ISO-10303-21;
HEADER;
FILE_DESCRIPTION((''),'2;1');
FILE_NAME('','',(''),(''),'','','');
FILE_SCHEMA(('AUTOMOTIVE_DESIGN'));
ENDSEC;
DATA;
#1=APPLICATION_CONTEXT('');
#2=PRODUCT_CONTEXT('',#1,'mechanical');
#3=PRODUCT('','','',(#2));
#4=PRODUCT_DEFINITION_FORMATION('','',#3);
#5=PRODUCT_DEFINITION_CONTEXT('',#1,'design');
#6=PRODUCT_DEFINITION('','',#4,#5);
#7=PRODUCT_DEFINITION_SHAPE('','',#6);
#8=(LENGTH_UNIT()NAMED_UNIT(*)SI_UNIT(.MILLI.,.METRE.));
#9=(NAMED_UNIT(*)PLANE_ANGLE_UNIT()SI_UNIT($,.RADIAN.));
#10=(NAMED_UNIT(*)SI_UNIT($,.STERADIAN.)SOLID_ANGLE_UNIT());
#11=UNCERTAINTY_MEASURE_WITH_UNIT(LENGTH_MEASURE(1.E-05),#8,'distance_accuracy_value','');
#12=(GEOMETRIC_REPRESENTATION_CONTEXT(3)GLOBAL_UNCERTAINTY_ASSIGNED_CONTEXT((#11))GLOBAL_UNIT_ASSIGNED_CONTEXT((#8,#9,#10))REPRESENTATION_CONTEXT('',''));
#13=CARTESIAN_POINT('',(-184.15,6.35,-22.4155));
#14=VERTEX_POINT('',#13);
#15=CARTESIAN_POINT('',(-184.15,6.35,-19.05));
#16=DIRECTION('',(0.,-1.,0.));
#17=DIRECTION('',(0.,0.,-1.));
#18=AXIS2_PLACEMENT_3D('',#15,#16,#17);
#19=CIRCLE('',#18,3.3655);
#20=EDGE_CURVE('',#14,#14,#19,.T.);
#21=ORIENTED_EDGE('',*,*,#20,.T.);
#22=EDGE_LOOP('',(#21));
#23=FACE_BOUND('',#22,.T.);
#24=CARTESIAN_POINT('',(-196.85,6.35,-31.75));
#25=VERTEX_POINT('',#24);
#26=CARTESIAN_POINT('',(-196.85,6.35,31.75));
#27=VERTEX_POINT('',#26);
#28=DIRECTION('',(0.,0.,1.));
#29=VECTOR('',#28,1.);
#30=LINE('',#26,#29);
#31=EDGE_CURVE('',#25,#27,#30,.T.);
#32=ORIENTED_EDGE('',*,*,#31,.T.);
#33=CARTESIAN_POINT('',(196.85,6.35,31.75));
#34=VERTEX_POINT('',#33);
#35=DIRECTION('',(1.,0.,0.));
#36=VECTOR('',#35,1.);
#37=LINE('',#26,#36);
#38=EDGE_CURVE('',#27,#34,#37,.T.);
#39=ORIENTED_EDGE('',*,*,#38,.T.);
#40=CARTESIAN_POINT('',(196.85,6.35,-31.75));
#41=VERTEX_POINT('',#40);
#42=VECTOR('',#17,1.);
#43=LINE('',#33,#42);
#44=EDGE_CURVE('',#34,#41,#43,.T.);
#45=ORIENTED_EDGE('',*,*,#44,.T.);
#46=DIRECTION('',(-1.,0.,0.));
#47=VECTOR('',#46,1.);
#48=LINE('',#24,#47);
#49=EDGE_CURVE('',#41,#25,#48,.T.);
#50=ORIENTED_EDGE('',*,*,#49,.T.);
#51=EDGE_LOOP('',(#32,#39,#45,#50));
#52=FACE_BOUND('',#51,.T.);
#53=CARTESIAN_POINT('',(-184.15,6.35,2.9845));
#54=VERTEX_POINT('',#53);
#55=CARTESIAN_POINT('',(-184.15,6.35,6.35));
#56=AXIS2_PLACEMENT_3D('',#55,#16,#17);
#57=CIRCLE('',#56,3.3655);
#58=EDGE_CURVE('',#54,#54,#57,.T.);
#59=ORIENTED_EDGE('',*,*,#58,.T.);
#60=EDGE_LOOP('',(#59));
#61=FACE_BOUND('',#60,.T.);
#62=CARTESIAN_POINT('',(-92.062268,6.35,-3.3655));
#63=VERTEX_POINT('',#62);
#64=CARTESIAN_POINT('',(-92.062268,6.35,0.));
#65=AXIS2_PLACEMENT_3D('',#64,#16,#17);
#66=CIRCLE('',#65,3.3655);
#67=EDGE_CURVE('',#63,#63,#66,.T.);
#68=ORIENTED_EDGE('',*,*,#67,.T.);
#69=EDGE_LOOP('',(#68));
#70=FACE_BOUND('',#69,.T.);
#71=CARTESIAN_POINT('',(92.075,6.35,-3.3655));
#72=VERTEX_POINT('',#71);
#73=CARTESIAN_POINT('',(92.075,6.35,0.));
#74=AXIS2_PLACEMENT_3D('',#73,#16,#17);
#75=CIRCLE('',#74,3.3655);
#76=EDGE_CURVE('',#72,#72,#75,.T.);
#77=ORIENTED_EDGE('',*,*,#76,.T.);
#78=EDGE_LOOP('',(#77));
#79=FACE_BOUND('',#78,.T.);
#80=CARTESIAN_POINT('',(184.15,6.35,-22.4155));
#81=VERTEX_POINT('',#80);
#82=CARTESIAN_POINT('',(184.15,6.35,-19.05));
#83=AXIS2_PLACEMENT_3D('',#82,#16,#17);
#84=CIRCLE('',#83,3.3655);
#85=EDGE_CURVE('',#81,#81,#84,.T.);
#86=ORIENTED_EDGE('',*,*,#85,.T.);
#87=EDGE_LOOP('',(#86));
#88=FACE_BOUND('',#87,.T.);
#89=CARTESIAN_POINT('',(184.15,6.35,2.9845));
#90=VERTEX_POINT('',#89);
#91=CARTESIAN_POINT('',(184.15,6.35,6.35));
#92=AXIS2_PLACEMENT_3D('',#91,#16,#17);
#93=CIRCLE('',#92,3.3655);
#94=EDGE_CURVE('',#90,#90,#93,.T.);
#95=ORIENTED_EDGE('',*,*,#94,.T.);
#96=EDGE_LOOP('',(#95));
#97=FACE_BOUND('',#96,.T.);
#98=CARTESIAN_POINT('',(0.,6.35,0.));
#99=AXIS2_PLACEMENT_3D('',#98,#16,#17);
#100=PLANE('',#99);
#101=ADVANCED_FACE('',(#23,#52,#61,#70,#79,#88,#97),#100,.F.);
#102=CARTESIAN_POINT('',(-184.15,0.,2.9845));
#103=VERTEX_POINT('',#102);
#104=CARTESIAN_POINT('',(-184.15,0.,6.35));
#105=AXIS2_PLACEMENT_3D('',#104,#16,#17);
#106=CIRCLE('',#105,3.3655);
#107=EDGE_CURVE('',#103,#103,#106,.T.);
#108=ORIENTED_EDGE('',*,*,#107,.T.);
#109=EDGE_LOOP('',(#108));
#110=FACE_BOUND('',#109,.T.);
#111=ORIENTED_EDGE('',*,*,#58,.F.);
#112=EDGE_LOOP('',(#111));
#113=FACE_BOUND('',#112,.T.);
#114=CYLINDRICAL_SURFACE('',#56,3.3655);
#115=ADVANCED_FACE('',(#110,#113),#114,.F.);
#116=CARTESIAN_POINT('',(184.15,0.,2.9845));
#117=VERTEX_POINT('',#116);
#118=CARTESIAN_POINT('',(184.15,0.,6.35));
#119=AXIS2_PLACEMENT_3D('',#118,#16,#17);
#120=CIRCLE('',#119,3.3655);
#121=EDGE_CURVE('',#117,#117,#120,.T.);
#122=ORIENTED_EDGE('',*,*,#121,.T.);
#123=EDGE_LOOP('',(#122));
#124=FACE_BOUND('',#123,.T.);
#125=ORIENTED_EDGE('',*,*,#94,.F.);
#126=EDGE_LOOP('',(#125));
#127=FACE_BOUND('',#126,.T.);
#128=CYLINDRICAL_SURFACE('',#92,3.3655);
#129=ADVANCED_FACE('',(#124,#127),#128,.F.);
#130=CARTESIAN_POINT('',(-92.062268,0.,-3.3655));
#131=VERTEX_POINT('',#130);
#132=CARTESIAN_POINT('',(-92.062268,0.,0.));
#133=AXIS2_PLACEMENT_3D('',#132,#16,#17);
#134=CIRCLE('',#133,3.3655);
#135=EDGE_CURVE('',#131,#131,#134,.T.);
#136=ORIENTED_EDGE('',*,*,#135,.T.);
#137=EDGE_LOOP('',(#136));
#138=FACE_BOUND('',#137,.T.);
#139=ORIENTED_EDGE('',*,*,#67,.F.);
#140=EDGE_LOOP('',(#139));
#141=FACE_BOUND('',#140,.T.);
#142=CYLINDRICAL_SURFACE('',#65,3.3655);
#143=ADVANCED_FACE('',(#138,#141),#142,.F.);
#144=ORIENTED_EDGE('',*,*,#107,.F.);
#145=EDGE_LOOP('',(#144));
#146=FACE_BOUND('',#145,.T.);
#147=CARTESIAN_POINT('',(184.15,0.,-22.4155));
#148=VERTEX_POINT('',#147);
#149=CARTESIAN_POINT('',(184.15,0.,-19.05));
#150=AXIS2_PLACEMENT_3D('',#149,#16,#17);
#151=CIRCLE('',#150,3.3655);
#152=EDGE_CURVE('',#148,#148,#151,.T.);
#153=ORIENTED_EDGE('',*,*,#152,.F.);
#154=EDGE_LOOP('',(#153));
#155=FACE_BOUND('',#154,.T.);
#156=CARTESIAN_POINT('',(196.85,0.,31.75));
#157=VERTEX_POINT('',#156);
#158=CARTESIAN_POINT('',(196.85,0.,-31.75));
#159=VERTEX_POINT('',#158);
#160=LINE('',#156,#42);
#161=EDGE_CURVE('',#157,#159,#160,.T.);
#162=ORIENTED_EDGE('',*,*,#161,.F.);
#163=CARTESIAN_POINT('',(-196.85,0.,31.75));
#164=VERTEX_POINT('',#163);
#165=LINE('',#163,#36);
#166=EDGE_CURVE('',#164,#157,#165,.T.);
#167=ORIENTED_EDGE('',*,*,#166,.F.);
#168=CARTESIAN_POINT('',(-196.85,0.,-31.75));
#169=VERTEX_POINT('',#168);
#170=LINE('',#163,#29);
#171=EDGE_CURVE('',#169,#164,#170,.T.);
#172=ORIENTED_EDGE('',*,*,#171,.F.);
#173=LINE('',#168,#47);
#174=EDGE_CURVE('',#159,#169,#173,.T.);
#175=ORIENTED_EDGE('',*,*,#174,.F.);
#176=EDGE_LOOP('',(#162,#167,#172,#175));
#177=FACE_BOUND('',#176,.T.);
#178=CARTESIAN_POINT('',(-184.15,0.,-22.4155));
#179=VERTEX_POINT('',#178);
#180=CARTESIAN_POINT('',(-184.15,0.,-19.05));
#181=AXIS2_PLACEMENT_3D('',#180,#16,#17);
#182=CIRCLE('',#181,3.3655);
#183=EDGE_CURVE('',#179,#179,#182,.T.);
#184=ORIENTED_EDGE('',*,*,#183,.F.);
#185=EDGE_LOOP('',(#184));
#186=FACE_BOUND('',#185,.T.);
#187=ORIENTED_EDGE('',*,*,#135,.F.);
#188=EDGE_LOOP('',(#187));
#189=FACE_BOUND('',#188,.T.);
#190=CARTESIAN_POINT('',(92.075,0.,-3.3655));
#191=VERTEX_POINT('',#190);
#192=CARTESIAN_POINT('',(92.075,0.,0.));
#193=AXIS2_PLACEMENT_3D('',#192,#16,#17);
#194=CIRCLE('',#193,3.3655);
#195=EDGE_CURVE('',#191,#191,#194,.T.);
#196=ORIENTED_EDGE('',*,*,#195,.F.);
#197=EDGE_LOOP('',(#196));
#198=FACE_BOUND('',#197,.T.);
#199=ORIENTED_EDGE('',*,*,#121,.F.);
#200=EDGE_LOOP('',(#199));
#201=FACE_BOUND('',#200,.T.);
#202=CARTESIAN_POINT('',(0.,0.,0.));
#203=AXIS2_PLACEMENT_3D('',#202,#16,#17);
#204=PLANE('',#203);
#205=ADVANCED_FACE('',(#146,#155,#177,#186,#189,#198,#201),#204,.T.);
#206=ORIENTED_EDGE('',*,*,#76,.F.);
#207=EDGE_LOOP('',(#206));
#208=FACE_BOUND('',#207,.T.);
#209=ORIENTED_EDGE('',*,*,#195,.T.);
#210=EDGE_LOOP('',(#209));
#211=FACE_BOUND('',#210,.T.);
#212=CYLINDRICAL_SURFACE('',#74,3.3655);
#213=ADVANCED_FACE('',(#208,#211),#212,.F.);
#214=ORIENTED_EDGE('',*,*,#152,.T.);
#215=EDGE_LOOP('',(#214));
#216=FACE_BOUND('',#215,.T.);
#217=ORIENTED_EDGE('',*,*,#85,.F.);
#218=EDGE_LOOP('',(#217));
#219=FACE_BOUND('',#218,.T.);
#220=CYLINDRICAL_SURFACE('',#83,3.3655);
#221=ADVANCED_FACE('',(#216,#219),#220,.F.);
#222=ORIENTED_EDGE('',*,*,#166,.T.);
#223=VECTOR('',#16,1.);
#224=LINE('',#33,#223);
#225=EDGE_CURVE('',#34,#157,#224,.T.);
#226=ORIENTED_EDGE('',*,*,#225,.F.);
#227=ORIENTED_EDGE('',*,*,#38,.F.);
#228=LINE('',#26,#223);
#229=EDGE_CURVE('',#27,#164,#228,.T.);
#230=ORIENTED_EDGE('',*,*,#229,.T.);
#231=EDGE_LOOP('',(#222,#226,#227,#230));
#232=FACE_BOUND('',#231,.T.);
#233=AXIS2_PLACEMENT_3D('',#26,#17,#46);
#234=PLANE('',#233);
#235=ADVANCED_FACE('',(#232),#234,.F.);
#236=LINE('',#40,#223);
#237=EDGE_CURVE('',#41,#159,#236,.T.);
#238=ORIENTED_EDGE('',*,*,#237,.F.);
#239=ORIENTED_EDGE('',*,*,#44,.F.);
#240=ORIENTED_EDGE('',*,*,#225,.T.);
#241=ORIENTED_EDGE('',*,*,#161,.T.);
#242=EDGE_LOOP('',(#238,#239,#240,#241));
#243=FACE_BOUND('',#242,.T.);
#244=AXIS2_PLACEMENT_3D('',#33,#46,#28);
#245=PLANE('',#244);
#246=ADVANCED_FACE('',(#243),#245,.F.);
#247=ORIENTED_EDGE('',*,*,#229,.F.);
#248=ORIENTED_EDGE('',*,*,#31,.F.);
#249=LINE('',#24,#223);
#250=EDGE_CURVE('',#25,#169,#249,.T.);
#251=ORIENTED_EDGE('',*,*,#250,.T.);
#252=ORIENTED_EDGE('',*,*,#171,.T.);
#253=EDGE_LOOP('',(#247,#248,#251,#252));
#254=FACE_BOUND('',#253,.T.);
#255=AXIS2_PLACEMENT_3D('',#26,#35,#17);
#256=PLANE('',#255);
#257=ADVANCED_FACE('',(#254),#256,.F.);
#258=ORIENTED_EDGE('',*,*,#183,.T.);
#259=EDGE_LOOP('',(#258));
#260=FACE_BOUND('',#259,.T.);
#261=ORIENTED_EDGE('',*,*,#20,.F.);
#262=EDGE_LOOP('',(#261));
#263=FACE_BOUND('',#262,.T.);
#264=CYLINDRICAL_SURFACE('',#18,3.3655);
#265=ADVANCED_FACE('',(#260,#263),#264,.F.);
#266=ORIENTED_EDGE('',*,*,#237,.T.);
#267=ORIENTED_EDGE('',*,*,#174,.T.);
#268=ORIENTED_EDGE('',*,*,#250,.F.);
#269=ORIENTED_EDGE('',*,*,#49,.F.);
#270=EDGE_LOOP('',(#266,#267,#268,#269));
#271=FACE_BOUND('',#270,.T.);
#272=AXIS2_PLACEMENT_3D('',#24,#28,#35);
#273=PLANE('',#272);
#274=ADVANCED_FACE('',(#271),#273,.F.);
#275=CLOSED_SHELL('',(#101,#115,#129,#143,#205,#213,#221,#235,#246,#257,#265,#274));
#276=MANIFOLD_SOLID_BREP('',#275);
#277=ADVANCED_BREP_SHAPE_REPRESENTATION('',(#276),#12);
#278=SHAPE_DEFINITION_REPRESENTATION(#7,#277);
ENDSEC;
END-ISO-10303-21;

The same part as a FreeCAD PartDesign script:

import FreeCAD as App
import Part
import Sketcher
from FreeCAD import Vector
Q = App.Units.Quantity


def add_polygon(sketch, points):
    """Adds a closed chain of lines whose ends are joined by coincident constraints."""
    first, n = sketch.GeometryCount, len(points)
    for a, b in zip(points, points[1:] + points[:1]):
        sketch.addGeometry(Part.LineSegment(App.Vector(*a, 0), App.Vector(*b, 0)), False)
    for i in range(n):
        sketch.addConstraint(Sketcher.Constraint("Coincident", first + i, 2, first + (i + 1) % n, 1))

doc = App.newDocument("Part")
body = doc.addObject("PartDesign::Body", "Body")

sketch1 = doc.addObject("Sketcher::SketchObject", "Sketch")
body.addObject(sketch1)
sketch1.AttachmentSupport = (doc.XZ_Plane, [""])
sketch1.MapMode = "FlatFace"
add_polygon(sketch1, [(-197, -32), (-197, 32), (197, 32), (197, -32)])
sketch1.addConstraint([
    Sketcher.Constraint("Vertical", 0),
    Sketcher.Constraint("Horizontal", 1),
    Sketcher.Constraint("Vertical", 2),
    Sketcher.Constraint("Horizontal", 3),
    Sketcher.Constraint("Symmetric", 0, 2, 2, 2, -1, 1),
    Sketcher.Constraint("DistanceX", 1, 1, 1, 2, Q("15.5 in")),
    Sketcher.Constraint("DistanceY", 0, 1, 0, 2, Q("2.5 in")),
])
pad1 = doc.addObject("PartDesign::Pad", "Pad")
body.addObject(pad1)
pad1.Profile = sketch1
pad1.Length = Q("0.25 in")
pad1.Reversed = True

sketch2 = doc.addObject("Sketcher::SketchObject", "Sketch001")
body.addObject(sketch2)
sketch2.AttachmentSupport = (doc.XZ_Plane, [""])
sketch2.MapMode = "FlatFace"
sketch2.addGeometry([
    Part.Circle(Vector(-92.1, 0, 0), Vector(0, 0, 1), 3.4),
    Part.Circle(Vector(-184.2, 6.3, 0), Vector(0, 0, 1), 3.4),
    Part.Circle(Vector(-184.2, -19.1, 0), Vector(0, 0, 1), 3.4),
    Part.Circle(Vector(92.1, 0, 0), Vector(0, 0, 1), 3.4),
    Part.Circle(Vector(184.2, 6.3, 0), Vector(0, 0, 1), 3.4),
    Part.Circle(Vector(184.2, -19.1, 0), Vector(0, 0, 1), 3.4),
], False)
sketch2.addConstraint([
    Sketcher.Constraint("Equal", 0, 1),
    Sketcher.Constraint("Equal", 1, 2),
    Sketcher.Constraint("Equal", 2, 3),
    Sketcher.Constraint("Equal", 3, 4),
    Sketcher.Constraint("Equal", 4, 5),
    Sketcher.Constraint("Symmetric", 1, 3, 4, 3, -2),
    Sketcher.Constraint("Symmetric", 2, 3, 5, 3, -2),
    Sketcher.Constraint("PointOnObject", 0, 3, -1),
    Sketcher.Constraint("PointOnObject", 3, 3, -1),
    Sketcher.Constraint("Vertical", 1, 3, 2, 3),
    Sketcher.Constraint("Diameter", 0, Q("0.265 in")),
    Sketcher.Constraint("DistanceY", 2, 3, 1, 3, Q("1 in")),
    Sketcher.Constraint("DistanceX", 1, 3, 4, 3, Q("14.5 in")),
    Sketcher.Constraint("DistanceY", -1, 1, 1, 3, Q("0.25 in")),
    Sketcher.Constraint("DistanceX", -1, 1, 3, 3, Q("3.625 in")),
    Sketcher.Constraint("DistanceX", 0, 3, -1, 1, 92.062268),
])
pocket1 = doc.addObject("PartDesign::Pocket", "Pocket")
body.addObject(pocket1)
pocket1.Profile = sketch2
pocket1.Type = "ThroughAll"

doc.recompute()
